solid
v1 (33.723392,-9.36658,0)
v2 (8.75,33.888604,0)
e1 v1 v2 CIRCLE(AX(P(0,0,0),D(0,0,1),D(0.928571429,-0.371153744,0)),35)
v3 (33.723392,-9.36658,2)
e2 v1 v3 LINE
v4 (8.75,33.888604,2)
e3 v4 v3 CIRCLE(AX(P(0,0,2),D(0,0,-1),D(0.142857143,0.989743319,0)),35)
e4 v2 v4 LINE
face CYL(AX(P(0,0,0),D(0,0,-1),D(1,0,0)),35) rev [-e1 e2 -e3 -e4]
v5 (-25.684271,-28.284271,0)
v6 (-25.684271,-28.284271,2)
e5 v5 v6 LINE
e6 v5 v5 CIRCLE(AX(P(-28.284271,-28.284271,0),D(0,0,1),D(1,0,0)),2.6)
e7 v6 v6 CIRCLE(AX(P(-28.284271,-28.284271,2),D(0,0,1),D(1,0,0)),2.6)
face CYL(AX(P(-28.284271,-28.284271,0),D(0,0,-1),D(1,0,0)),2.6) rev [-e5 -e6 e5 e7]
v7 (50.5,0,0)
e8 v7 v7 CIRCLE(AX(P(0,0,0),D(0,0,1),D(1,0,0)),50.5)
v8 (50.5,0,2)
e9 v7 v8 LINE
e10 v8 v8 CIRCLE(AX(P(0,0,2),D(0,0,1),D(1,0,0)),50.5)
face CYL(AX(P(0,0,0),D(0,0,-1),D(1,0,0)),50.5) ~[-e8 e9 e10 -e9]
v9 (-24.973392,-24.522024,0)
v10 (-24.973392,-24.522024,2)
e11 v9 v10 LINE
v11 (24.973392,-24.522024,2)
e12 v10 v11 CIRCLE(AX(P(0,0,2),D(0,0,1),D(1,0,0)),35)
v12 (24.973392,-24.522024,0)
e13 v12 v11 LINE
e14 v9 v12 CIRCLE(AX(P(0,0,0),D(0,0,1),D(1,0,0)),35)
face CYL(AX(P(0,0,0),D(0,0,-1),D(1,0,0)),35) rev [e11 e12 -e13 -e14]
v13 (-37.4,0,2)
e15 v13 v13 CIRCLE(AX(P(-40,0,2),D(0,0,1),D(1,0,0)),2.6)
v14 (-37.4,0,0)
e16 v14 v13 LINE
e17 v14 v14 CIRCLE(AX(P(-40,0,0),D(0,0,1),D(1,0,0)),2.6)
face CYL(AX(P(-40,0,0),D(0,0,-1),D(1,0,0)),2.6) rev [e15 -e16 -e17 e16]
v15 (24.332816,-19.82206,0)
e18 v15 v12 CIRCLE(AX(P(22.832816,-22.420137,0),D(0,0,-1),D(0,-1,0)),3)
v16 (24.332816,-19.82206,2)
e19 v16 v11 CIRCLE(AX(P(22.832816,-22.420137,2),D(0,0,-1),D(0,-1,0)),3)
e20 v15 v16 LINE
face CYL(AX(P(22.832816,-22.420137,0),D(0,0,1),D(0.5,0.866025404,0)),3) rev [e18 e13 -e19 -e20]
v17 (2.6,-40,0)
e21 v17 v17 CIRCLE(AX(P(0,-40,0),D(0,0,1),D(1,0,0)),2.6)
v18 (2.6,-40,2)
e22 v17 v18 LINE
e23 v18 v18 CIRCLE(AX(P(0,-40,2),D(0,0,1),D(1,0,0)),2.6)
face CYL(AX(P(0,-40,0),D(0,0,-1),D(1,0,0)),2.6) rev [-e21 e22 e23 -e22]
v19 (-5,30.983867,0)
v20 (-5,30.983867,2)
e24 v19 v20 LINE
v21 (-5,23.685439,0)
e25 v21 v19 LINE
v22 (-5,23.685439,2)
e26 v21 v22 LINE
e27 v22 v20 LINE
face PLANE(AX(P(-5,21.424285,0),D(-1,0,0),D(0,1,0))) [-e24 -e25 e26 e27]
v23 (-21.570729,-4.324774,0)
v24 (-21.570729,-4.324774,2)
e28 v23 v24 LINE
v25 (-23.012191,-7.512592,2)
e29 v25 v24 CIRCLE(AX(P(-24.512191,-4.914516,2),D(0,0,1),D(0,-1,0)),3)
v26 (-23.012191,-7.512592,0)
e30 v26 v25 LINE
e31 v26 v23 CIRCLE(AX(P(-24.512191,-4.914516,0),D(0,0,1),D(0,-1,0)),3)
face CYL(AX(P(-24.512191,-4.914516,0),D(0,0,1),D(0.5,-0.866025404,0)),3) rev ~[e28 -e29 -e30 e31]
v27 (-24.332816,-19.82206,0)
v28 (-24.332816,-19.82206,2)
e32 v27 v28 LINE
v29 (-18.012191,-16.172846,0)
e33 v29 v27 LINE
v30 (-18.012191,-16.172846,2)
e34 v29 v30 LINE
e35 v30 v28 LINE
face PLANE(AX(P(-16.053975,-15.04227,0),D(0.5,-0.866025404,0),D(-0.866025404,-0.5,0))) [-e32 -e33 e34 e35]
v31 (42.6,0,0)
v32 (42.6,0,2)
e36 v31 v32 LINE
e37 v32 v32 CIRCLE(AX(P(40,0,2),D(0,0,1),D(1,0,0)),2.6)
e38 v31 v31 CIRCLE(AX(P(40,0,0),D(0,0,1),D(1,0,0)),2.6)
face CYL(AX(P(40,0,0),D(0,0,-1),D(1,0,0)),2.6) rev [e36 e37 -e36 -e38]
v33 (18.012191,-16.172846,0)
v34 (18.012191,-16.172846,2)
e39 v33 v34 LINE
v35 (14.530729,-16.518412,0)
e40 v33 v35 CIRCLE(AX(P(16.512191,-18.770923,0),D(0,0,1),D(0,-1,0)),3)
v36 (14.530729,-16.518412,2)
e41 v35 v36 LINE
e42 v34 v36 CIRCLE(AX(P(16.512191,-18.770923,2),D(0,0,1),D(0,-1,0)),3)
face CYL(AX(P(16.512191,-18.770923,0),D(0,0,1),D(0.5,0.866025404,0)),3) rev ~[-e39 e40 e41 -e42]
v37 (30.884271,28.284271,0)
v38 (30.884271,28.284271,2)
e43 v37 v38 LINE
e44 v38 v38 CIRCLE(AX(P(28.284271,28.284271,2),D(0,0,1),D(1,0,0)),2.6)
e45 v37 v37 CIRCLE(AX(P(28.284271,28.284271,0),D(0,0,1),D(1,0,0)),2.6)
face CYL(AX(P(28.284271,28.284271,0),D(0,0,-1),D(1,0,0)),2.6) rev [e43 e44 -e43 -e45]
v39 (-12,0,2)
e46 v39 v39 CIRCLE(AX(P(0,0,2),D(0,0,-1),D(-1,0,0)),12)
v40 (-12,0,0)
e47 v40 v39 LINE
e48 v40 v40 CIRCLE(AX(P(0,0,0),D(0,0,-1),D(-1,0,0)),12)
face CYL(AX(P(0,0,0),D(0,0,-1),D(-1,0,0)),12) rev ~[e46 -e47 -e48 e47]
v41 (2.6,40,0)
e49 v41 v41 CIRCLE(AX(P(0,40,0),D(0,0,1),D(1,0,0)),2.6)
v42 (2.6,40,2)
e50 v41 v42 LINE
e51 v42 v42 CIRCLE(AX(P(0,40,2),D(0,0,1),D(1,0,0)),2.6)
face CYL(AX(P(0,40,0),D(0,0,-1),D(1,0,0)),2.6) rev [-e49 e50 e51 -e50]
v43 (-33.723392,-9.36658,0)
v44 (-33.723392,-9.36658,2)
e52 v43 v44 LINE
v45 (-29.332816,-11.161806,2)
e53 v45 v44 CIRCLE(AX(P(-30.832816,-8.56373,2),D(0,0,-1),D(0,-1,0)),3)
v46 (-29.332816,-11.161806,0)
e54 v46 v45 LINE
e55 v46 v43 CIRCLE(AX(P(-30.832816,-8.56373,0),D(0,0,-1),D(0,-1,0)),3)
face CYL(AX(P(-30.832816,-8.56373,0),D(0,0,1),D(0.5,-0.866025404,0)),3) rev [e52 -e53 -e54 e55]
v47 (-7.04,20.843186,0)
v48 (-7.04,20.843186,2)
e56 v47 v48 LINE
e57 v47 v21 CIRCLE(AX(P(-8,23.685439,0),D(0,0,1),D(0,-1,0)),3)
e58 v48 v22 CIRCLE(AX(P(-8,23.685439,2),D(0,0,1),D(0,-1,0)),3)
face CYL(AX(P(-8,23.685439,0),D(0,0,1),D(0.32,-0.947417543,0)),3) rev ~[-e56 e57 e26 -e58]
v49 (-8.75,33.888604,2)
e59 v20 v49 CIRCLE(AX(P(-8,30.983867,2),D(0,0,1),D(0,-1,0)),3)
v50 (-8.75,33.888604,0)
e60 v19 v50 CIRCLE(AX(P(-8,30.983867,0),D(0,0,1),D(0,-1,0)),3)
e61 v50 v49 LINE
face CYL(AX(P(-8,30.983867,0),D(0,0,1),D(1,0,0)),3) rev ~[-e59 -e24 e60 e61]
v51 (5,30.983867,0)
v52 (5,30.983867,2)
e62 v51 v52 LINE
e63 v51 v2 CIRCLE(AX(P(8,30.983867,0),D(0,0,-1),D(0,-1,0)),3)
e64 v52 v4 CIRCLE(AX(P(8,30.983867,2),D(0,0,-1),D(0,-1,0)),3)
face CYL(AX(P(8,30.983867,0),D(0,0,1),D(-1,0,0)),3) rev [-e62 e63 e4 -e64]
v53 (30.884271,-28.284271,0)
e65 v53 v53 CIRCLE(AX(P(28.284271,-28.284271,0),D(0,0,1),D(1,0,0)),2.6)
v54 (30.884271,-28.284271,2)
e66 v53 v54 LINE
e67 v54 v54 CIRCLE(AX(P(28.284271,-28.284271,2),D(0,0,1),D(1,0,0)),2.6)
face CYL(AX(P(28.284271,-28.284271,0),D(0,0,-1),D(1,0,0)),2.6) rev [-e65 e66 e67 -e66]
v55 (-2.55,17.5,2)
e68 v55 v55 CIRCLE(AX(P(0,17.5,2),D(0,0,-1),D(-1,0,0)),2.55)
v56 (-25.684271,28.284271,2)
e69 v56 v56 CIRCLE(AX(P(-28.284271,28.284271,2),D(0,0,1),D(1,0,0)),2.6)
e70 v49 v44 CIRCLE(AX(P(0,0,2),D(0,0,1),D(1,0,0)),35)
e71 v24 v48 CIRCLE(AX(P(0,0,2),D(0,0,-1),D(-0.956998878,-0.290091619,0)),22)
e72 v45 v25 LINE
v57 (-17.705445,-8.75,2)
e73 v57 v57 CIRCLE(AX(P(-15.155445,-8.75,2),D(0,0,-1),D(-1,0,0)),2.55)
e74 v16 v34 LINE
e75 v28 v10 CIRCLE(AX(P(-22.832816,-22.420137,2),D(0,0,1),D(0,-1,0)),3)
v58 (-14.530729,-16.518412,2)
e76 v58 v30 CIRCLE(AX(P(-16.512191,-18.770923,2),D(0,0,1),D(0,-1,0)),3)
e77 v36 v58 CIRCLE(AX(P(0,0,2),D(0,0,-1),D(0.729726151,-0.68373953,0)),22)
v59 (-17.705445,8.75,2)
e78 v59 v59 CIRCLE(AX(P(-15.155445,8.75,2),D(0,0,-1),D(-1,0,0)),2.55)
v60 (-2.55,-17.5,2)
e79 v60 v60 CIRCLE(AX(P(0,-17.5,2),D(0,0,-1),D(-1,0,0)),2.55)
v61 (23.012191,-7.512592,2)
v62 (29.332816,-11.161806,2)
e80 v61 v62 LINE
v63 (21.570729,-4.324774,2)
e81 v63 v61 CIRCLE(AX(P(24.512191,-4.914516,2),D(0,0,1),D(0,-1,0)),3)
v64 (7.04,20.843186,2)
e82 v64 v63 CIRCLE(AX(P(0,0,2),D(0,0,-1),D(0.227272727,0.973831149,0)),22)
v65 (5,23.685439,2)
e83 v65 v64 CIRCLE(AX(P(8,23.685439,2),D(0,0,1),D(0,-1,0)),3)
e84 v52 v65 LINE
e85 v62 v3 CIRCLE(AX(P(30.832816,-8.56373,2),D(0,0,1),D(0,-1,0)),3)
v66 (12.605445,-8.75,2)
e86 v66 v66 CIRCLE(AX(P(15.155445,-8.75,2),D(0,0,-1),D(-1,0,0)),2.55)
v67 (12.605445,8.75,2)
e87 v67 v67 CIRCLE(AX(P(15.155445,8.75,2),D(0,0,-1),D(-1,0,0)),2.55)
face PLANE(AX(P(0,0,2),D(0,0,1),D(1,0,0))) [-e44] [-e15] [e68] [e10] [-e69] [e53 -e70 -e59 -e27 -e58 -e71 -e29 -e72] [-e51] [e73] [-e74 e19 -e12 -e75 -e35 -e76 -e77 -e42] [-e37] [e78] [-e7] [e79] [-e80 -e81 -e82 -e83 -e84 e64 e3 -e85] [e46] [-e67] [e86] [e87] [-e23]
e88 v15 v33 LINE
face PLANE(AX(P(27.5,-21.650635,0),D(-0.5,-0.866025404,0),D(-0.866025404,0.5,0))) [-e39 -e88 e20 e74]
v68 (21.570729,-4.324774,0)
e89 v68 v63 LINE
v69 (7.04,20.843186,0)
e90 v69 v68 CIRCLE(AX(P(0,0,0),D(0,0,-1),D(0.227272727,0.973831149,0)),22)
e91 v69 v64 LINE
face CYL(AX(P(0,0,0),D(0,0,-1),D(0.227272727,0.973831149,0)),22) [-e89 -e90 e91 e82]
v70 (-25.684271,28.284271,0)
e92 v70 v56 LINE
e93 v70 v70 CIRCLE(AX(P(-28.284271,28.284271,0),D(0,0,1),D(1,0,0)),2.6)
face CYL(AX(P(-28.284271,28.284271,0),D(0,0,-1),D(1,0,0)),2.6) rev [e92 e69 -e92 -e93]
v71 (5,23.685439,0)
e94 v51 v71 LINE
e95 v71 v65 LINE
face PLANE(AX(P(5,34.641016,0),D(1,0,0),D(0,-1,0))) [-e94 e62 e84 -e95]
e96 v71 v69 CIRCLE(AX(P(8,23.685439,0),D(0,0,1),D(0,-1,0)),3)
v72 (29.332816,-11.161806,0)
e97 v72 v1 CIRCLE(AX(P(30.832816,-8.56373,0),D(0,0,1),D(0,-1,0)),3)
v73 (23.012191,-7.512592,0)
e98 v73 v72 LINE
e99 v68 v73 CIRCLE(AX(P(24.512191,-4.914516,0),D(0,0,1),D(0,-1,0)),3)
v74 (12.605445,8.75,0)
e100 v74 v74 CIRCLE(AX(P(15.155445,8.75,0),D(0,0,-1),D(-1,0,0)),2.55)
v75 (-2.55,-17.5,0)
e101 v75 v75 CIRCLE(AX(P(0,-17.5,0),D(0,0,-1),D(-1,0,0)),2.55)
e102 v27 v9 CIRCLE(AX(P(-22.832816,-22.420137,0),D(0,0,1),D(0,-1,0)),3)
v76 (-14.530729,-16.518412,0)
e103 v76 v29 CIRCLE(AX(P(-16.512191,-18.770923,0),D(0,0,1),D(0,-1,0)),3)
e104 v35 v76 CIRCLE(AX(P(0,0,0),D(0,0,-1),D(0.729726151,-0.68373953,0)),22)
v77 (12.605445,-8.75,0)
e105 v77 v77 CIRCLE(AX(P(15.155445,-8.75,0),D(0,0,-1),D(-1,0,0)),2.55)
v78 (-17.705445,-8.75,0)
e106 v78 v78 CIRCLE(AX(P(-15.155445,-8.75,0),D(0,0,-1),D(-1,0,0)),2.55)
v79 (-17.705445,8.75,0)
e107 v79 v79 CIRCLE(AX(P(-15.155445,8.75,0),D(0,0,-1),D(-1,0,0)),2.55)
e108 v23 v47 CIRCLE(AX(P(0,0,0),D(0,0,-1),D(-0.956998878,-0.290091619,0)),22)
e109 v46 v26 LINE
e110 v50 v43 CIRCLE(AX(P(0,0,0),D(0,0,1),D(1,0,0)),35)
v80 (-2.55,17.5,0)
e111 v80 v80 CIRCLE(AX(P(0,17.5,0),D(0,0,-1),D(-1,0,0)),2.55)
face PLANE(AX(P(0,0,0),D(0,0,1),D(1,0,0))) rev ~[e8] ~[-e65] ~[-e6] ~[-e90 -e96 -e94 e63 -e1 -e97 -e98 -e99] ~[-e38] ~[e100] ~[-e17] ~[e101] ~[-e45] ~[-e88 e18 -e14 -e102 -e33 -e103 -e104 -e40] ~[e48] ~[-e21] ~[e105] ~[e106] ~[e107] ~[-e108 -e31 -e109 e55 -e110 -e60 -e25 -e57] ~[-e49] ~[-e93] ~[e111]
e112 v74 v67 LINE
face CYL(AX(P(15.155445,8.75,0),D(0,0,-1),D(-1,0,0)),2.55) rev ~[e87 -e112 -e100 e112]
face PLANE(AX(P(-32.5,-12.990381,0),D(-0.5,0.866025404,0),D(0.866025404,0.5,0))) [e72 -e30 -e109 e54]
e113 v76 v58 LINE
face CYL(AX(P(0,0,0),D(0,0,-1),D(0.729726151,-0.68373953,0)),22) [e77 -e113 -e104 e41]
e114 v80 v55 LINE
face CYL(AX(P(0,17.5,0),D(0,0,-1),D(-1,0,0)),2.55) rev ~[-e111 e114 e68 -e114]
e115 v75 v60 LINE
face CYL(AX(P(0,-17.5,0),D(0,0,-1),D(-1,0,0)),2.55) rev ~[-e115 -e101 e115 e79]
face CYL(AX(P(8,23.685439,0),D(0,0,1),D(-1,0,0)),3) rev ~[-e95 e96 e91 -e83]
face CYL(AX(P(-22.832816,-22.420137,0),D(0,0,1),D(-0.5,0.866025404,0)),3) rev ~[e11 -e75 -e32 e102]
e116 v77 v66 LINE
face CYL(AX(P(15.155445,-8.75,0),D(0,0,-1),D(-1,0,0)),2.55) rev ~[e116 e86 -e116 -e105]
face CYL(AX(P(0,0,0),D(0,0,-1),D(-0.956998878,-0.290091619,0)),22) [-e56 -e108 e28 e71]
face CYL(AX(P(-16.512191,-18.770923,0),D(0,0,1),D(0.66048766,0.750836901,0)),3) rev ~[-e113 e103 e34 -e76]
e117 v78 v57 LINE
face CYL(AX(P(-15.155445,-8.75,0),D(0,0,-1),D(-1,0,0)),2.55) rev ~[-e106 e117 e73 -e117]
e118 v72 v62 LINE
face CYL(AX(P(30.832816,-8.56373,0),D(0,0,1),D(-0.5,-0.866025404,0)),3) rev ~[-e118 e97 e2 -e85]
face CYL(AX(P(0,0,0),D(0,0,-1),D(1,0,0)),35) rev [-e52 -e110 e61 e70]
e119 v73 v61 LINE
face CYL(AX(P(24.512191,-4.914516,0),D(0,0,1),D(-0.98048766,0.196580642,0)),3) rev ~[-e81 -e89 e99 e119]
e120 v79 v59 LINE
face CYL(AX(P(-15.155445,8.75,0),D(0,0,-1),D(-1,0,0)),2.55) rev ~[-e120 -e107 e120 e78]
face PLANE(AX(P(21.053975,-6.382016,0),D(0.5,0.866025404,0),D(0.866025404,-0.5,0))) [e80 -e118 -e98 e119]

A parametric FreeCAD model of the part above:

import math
import FreeCAD as App
import Part
import Sketcher
from FreeCAD import Vector
Q = App.Units.Quantity


def edges_at(feature, points):
    """Names of the edges that pass closest to the given points."""
    edges = feature.Shape.Edges
    near = lambda p: min(range(len(edges)), key=lambda i: edges[i].distToShape(Part.Vertex(*p))[0])
    return sorted({f"Edge{near(p) + 1}" for p in points})

doc = App.newDocument("Part")
body = doc.addObject("PartDesign::Body", "Body")

# Sketch on XY plane
sketch1 = doc.addObject("Sketcher::SketchObject", "Sketch")
body.addObject(sketch1)
sketch1.AttachmentSupport = (doc.XY_Plane, [""])
sketch1.MapMode = "FlatFace"
sketch1.addGeometry([
    Part.Circle(Vector(0, 0, 0), Vector(0, 0, 1), 50.5),  # 0
    Part.Circle(Vector(-28.284271, -28.284271, 0), Vector(0, 0, 1), 2.6),  # 1
    Part.Circle(Vector(0, -40, 0), Vector(0, 0, 1), 2.6),  # 2
    Part.Circle(Vector(28.284271, -28.284271, 0), Vector(0, 0, 1), 2.6),  # 3
    Part.Circle(Vector(-40, 0, 0), Vector(0, 0, 1), 2.6),  # 4
    Part.Circle(Vector(-28.284271, 28.284271, 0), Vector(0, 0, 1), 2.6),  # 5
    Part.Circle(Vector(0, 0, 0), Vector(0, 0, 1), 35),  # 6
    Part.Circle(Vector(40, 0, 0), Vector(0, 0, 1), 2.6),  # 7
    Part.Circle(Vector(0, 40, 0), Vector(0, 0, 1), 2.6),  # 8
    Part.Circle(Vector(28.284271, 28.284271, 0), Vector(0, 0, 1), 2.6),  # 9
], False)
sketch1.addConstraint([
    Sketcher.Constraint("Coincident", 0, 3, -1, 1),
    Sketcher.Constraint("Coincident", 6, 3, -1, 1),
    Sketcher.Constraint("Equal", 1, 2),
    Sketcher.Constraint("Equal", 2, 3),
    Sketcher.Constraint("Equal", 3, 4),
    Sketcher.Constraint("Equal", 4, 5),
    Sketcher.Constraint("Equal", 5, 7),
    Sketcher.Constraint("Equal", 7, 8),
    Sketcher.Constraint("Equal", 8, 9),
    Sketcher.Constraint("Symmetric", 3, 3, 5, 3, -1, 1),
    Sketcher.Constraint("Symmetric", 4, 3, 7, 3, -1, 1),
    Sketcher.Constraint("Symmetric", 2, 3, 8, 3, -1, 1),
    Sketcher.Constraint("Symmetric", 1, 3, 9, 3, -1, 1),
    Sketcher.Constraint("Symmetric", 1, 3, 3, 3, -2),
    Sketcher.Constraint("PointOnObject", 2, 3, -2),
    Sketcher.Constraint("PointOnObject", 4, 3, -1),
    Sketcher.Constraint("Diameter", 0, 101.0),
    Sketcher.Constraint("Diameter", 6, 70.0),
    Sketcher.Constraint("Diameter", 1, 5.2),
    Sketcher.Constraint("DistanceY", 2, 3, -1, 1, 40.0),
    Sketcher.Constraint("DistanceX", 4, 3, -1, 1, 40.0),
    Sketcher.Constraint("DistanceX", 1, 3, -1, 1, 28.284271),
    Sketcher.Constraint("DistanceY", 1, 3, -1, 1, 28.284271),
])
pad1 = doc.addObject("PartDesign::Pad", "Pad")
body.addObject(pad1)
pad1.Profile = sketch1
pad1.Length = 2

# Sketch on XY plane
sketch2 = doc.addObject("Sketcher::SketchObject", "Sketch001")
body.addObject(sketch2)
sketch2.AttachmentSupport = (doc.XY_Plane, [""])
sketch2.MapMode = "FlatFace"
sketch2.addGeometry([
    Part.LineSegment(Vector(5, 34.641016, 0), Vector(5, 21.424285, 0)),  # 0
    Part.ArcOfCircle(Part.Circle(Vector(0, 0, 0), Vector(0, 0, 1), 22), math.radians(-16.863441), math.radians(76.863441)),  # 1
    Part.LineSegment(Vector(21.053975, -6.382016, 0), Vector(32.5, -12.990381, 0)),  # 2
    Part.ArcOfCircle(Part.Circle(Vector(0, 0, 0), Vector(0, 0, 1), 35), math.radians(-38.213211), math.radians(-21.786789)),  # 3
    Part.LineSegment(Vector(27.5, -21.650635, 0), Vector(16.053975, -15.04227, 0)),  # 4
    Part.ArcOfCircle(Part.Circle(Vector(0, 0, 0), Vector(0, 0, 1), 22), math.radians(-136.863441), math.radians(-43.136559)),  # 5
    Part.LineSegment(Vector(-16.053975, -15.04227, 0), Vector(-27.5, -21.650635, 0)),  # 6
    Part.ArcOfCircle(Part.Circle(Vector(0, 0, 0), Vector(0, 0, 1), 35), math.radians(-158.213211), math.radians(-141.786789)),  # 7
    Part.LineSegment(Vector(-32.5, -12.990381, 0), Vector(-21.053975, -6.382016, 0)),  # 8
    Part.ArcOfCircle(Part.Circle(Vector(0, 0, 0), Vector(0, 0, 1), 22), math.radians(103.136559), math.radians(196.863441)),  # 9
    Part.LineSegment(Vector(-5, 21.424285, 0), Vector(-5, 34.641016, 0)),  # 10
    Part.ArcOfCircle(Part.Circle(Vector(0, 0, 0), Vector(0, 0, 1), 35), math.radians(81.786789), math.radians(98.213211)),  # 11
    Part.Circle(Vector(15.155445, -8.75, 0), Vector(0, 0, 1), 2.55),  # 12
    Part.Circle(Vector(0, -17.5, 0), Vector(0, 0, 1), 2.55),  # 13
    Part.Circle(Vector(0, 0, 0), Vector(0, 0, 1), 12),  # 14
    Part.Circle(Vector(-15.155445, -8.75, 0), Vector(0, 0, 1), 2.55),  # 15
    Part.Circle(Vector(15.155445, 8.75, 0), Vector(0, 0, 1), 2.55),  # 16
    Part.Circle(Vector(-15.155445, 8.75, 0), Vector(0, 0, 1), 2.55),  # 17
    Part.Circle(Vector(0, 17.5, 0), Vector(0, 0, 1), 2.55),  # 18
], False)
sketch2.addConstraint([
    Sketcher.Constraint("Coincident", 0, 2, 1, 2),
    Sketcher.Constraint("Coincident", 1, 1, 2, 1),
    Sketcher.Constraint("Coincident", 2, 2, 3, 2),
    Sketcher.Constraint("Coincident", 3, 1, 4, 1),
    Sketcher.Constraint("Coincident", 4, 2, 5, 2),
    Sketcher.Constraint("Coincident", 5, 1, 6, 1),
    Sketcher.Constraint("Coincident", 6, 2, 7, 2),
    Sketcher.Constraint("Coincident", 7, 1, 8, 1),
    Sketcher.Constraint("Coincident", 8, 2, 9, 2),
    Sketcher.Constraint("Coincident", 9, 1, 10, 1),
    Sketcher.Constraint("Coincident", 10, 2, 11, 2),
    Sketcher.Constraint("Coincident", 11, 1, 0, 1),
    Sketcher.Constraint("Vertical", 0),
    Sketcher.Constraint("Vertical", 10),
    Sketcher.Constraint("Coincident", 1, 3, -1, 1),
    Sketcher.Constraint("Coincident", 3, 3, -1, 1),
    Sketcher.Constraint("Coincident", 5, 3, -1, 1),
    Sketcher.Constraint("Coincident", 7, 3, -1, 1),
    Sketcher.Constraint("Coincident", 9, 3, -1, 1),
    Sketcher.Constraint("Coincident", 11, 3, -1, 1),
    Sketcher.Constraint("Coincident", 14, 3, -1, 1),
    Sketcher.Constraint("Equal", 1, 5),
    Sketcher.Constraint("Equal", 3, 7),
    Sketcher.Constraint("Equal", 5, 9),
    Sketcher.Constraint("Equal", 7, 11),
    Sketcher.Constraint("Equal", 12, 13),
    Sketcher.Constraint("Equal", 13, 15),
    Sketcher.Constraint("Equal", 15, 16),
    Sketcher.Constraint("Equal", 16, 17),
    Sketcher.Constraint("Equal", 17, 18),
    Sketcher.Constraint("Symmetric", 15, 3, 16, 3, -1, 1),
    Sketcher.Constraint("Symmetric", 12, 3, 17, 3, -1, 1),
    Sketcher.Constraint("Symmetric", 13, 3, 18, 3, -1, 1),
    Sketcher.Constraint("Symmetric", 12, 3, 15, 3, -2),
    Sketcher.Constraint("PointOnObject", 13, 3, -2),
    Sketcher.Constraint("Parallel", 2, 4),
    Sketcher.Constraint("Parallel", 6, 8),
    Sketcher.Constraint("Horizontal", 4, 2, 5, 1),
    Sketcher.Constraint("Horizontal", 3, 1, 6, 2),
    Sketcher.Constraint("Horizontal", 2, 2, 7, 1),
    Sketcher.Constraint("Horizontal", 0, 2, 9, 1),
    Sketcher.Constraint("Equal", 2, 4),
    Sketcher.Constraint("Diameter", 14, 24.0),
    Sketcher.Constraint("Radius", 1, 22.0),
    Sketcher.Constraint("Radius", 3, 35.0),
    Sketcher.Constraint("Diameter", 12, 5.1),
    Sketcher.Constraint("Angle", 2, Q("-30 deg")),
    Sketcher.Constraint("DistanceX", -1, 1, 0, 2, 5.0),
    Sketcher.Constraint("DistanceX", 3, 1, 2, 2, 5.0),
    Sketcher.Constraint("DistanceY", 13, 3, -1, 1, 17.5),
    Sketcher.Constraint("DistanceY", 12, 3, -1, 1, 8.75),
    Sketcher.Constraint("DistanceX", 12, 3, 1, 1, 5.898531),
])
pad2 = doc.addObject("PartDesign::Pad", "Pad001")
body.addObject(pad2)
pad2.Profile = sketch2
pad2.Length = 2
doc.recompute()

fillet = doc.addObject("PartDesign::Fillet", "Fillet")
body.addObject(fillet)
fillet.Base = (pad2, edges_at(pad2, [
    (5, 21.424, 1),
    (5, 34.641, 1),
    (-5, 34.641, 1),
    (-5, 21.424, 1),
    (-21.054, -6.382, 1),
    (-32.5, -12.99, 1),
    (-27.5, -21.651, 1),
    (-16.054, -15.042, 1),
    (16.054, -15.042, 1),
    (27.5, -21.651, 1),
    (32.5, -12.99, 1),
    (21.054, -6.382, 1),
]))
fillet.Radius = 3

doc.recompute()
